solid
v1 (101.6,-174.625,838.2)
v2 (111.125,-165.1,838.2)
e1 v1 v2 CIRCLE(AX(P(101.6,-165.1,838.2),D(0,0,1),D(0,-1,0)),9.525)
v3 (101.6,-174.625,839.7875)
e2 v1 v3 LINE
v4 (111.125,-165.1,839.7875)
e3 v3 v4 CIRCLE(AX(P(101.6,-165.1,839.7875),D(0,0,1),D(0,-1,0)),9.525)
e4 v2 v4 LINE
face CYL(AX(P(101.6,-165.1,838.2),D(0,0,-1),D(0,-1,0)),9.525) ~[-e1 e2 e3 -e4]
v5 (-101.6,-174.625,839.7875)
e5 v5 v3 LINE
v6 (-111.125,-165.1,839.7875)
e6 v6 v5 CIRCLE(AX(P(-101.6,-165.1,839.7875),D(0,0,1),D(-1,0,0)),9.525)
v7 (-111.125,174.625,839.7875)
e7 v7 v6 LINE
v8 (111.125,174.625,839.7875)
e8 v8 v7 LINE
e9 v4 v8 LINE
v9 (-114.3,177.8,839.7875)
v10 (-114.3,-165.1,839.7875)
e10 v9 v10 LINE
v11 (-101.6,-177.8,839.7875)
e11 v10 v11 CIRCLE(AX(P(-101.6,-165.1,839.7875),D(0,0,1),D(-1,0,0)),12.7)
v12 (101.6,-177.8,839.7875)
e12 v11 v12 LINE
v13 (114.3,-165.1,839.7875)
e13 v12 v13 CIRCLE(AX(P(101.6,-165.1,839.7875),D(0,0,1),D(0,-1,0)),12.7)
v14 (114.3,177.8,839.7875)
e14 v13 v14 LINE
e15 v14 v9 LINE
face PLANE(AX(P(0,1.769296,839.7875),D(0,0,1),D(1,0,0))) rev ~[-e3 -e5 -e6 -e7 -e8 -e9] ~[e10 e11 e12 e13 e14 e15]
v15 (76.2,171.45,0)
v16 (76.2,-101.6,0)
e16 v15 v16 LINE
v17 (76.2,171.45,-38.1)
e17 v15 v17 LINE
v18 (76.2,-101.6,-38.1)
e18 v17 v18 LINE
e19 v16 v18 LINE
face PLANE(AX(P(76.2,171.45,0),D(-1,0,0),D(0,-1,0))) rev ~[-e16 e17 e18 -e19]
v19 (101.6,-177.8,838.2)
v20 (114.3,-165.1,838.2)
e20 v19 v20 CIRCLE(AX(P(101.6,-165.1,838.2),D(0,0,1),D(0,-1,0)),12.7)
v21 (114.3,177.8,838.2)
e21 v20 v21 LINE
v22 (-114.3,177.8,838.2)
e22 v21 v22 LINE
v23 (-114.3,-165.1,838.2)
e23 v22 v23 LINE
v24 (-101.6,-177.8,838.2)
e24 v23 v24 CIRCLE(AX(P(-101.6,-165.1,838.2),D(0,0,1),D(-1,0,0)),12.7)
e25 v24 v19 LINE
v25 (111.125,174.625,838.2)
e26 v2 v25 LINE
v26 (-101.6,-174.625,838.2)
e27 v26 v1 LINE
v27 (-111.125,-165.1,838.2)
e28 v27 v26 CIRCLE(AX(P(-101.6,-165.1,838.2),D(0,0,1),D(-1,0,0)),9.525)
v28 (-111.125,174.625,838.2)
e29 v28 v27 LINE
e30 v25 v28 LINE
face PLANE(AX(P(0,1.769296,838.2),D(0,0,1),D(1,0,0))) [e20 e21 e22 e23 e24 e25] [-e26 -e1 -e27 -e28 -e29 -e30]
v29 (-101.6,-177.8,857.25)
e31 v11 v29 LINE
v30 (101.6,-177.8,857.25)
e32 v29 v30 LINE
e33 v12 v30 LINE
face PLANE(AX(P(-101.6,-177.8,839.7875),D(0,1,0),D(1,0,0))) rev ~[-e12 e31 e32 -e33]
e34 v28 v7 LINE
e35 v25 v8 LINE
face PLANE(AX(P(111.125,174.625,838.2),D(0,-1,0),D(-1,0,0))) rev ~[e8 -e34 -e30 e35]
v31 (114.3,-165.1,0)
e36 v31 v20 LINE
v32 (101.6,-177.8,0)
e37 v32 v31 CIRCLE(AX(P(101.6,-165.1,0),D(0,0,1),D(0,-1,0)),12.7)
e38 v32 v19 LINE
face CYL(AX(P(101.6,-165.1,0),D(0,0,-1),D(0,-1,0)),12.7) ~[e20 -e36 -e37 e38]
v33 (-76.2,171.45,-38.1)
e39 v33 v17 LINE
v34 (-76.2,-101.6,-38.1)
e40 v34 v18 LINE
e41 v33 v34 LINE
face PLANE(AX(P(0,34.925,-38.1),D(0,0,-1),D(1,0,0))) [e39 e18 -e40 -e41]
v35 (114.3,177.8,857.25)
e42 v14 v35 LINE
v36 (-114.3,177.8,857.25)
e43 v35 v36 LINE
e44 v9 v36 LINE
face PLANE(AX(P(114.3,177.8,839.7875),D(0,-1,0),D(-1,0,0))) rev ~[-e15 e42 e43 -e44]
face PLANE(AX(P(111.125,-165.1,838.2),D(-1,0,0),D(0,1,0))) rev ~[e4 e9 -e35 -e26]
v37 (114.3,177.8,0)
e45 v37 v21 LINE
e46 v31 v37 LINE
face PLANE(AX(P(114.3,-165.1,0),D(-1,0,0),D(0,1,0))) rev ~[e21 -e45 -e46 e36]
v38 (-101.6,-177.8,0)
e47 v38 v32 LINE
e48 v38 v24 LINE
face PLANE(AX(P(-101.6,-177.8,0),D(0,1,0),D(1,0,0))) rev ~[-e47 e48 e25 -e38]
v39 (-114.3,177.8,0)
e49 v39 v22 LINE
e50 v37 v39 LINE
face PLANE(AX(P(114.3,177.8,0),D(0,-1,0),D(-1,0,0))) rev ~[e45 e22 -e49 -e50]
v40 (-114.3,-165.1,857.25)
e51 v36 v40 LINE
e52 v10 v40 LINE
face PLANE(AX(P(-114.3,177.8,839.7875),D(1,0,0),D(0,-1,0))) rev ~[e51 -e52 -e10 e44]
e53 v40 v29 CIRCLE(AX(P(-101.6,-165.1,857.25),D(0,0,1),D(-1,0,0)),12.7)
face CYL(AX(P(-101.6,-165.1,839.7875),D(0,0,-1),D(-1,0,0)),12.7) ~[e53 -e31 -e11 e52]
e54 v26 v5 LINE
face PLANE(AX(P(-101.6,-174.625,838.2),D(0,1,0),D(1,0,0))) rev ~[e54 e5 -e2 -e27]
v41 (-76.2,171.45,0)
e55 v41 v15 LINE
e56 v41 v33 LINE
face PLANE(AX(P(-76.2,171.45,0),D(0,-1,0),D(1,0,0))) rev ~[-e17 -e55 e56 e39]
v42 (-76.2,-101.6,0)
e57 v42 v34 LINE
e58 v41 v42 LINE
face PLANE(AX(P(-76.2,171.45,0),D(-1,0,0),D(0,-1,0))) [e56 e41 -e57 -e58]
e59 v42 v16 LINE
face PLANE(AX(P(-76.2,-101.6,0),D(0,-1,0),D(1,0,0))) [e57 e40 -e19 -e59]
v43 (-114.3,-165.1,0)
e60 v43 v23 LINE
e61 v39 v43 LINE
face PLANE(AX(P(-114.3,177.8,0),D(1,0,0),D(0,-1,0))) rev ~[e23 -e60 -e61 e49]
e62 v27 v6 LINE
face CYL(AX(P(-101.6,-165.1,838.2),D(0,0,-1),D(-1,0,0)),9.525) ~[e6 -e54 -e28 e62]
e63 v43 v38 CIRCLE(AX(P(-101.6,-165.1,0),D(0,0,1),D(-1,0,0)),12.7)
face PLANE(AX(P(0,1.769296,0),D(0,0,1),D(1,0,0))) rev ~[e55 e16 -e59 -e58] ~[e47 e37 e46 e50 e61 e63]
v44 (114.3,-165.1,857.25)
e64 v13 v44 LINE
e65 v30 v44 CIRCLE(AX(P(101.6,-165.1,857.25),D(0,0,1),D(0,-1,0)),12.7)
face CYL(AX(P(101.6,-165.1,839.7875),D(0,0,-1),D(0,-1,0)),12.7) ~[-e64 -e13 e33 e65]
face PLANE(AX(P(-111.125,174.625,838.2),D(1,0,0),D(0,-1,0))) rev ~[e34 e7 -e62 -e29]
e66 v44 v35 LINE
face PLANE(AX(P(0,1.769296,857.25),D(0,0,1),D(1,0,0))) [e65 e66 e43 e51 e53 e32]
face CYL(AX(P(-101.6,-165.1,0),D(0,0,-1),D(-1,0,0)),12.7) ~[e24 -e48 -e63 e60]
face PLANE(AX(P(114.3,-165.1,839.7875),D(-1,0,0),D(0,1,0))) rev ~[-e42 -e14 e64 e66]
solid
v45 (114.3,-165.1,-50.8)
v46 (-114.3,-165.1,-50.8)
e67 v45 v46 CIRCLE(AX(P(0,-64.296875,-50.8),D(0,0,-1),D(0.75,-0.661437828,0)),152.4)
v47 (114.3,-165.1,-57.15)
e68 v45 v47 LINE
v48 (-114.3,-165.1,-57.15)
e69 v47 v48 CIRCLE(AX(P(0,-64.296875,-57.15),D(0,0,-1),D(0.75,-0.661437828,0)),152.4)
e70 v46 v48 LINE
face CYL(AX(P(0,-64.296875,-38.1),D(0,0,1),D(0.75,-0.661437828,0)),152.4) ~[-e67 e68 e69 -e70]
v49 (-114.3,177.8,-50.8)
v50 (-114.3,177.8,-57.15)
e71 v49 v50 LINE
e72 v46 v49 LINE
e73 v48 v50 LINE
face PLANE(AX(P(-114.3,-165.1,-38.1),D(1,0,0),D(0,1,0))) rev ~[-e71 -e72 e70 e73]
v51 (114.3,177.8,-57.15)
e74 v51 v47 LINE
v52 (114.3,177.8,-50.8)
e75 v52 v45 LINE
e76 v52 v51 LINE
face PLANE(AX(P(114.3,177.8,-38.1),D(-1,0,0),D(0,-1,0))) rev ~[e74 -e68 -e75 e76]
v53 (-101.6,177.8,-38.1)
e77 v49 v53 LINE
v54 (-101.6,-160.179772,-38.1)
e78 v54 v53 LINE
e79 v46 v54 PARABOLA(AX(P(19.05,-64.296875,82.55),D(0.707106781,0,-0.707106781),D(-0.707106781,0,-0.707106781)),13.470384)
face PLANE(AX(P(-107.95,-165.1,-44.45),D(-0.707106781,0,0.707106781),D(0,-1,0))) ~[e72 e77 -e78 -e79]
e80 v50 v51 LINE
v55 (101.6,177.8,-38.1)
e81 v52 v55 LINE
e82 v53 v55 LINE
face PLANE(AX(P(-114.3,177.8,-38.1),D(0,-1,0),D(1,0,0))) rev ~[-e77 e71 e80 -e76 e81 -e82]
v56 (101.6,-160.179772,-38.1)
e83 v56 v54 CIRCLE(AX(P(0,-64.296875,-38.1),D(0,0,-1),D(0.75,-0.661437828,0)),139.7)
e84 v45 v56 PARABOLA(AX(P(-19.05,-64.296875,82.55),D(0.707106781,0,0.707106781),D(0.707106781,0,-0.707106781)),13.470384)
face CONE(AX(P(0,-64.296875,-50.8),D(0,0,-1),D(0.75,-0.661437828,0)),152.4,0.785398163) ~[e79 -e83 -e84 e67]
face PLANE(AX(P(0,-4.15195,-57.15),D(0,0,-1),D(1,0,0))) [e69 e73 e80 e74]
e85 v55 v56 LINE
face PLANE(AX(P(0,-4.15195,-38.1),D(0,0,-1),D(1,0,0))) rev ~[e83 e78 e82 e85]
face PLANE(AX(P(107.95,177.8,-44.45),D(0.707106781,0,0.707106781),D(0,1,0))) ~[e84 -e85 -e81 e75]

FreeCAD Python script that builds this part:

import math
import FreeCAD as App
import Part
import Sketcher
Q = App.Units.Quantity


def edges_at(feature, points):
    """Names of the edges that pass closest to the given points."""
    edges = feature.Shape.Edges
    near = lambda p: min(range(len(edges)), key=lambda i: edges[i].distToShape(Part.Vertex(*p))[0])
    return sorted({f"Edge{near(p) + 1}" for p in points})

doc = App.newDocument("Part")
body = doc.addObject("PartDesign::Body", "Body")

sketch1 = body.newObject("Sketcher::SketchObject", "Sketch")
sketch1.AttachmentSupport = (doc.getObject("XY_Plane"), [""])
sketch1.MapMode = "FlatFace"
sketch1.addGeometry(Part.LineSegment(App.Vector(-114, 178, 0), App.Vector(-114, -165, 0)), False)
sketch1.addGeometry(Part.ArcOfCircle(Part.Circle(App.Vector(-102, -165, 0), App.Vector(0, 0, 1), 13), math.radians(180), math.radians(270)), False)
sketch1.addGeometry(Part.LineSegment(App.Vector(-102, -178, 0), App.Vector(102, -178, 0)), False)
sketch1.addGeometry(Part.ArcOfCircle(Part.Circle(App.Vector(102, -165, 0), App.Vector(0, 0, 1), 13), math.radians(-90), math.radians(0)), False)
sketch1.addGeometry(Part.LineSegment(App.Vector(114, -165, 0), App.Vector(114, 178, 0)), False)
sketch1.addGeometry(Part.LineSegment(App.Vector(114, 178, 0), App.Vector(-114, 178, 0)), False)
sketch1.addConstraint(Sketcher.Constraint("Tangent", 0, 2, 1, 1))
sketch1.addConstraint(Sketcher.Constraint("Tangent", 1, 2, 2, 1))
sketch1.addConstraint(Sketcher.Constraint("Tangent", 2, 2, 3, 1))
sketch1.addConstraint(Sketcher.Constraint("Tangent", 3, 2, 4, 1))
sketch1.addConstraint(Sketcher.Constraint("Coincident", 4, 2, 5, 1))
sketch1.addConstraint(Sketcher.Constraint("Coincident", 5, 2, 0, 1))
sketch1.addConstraint(Sketcher.Constraint("Vertical", 0))
sketch1.addConstraint(Sketcher.Constraint("Horizontal", 2))
sketch1.addConstraint(Sketcher.Constraint("Vertical", 4))
sketch1.addConstraint(Sketcher.Constraint("Horizontal", 5))
sketch1.addConstraint(Sketcher.Constraint("Equal", 1, 3))
sketch1.addConstraint(Sketcher.Constraint("Radius", 1, Q("0.5 in")))
sketch1.addConstraint(Sketcher.Constraint("DistanceX", 2, 1, 2, 2, Q("8 in")))
sketch1.addConstraint(Sketcher.Constraint("DistanceY", 0, 2, 0, 1, Q("13.5 in")))
sketch1.addConstraint(Sketcher.Constraint("DistanceX", 1, 3, -1, 1, Q("4 in")))
sketch1.addConstraint(Sketcher.Constraint("DistanceY", 1, 2, -1, 1, Q("7 in")))
pad1 = body.newObject("PartDesign::Pad", "Pad")
pad1.Profile = sketch1
pad1.Length = Q("33 in")

sketch2 = body.newObject("Sketcher::SketchObject", "Sketch001")
sketch2.AttachmentSupport = (doc.getObject("XY_Plane"), [""])
sketch2.MapMode = "FlatFace"
sketch2.AttachmentOffset = App.Placement(App.Vector(0, 0, 33 * 25.4), App.Rotation())
sketch2.addGeometry(Part.LineSegment(App.Vector(-111, 175, 0), App.Vector(-111, -165, 0)), False)
sketch2.addGeometry(Part.ArcOfCircle(Part.Circle(App.Vector(-102, -165, 0), App.Vector(0, 0, 1), 10), math.radians(180), math.radians(270)), False)
sketch2.addGeometry(Part.LineSegment(App.Vector(-102, -175, 0), App.Vector(102, -175, 0)), False)
sketch2.addGeometry(Part.ArcOfCircle(Part.Circle(App.Vector(102, -165, 0), App.Vector(0, 0, 1), 10), math.radians(-90), math.radians(0)), False)
sketch2.addGeometry(Part.LineSegment(App.Vector(111, -165, 0), App.Vector(111, 175, 0)), False)
sketch2.addGeometry(Part.LineSegment(App.Vector(111, 175, 0), App.Vector(-111, 175, 0)), False)
sketch2.addConstraint(Sketcher.Constraint("Tangent", 0, 2, 1, 1))
sketch2.addConstraint(Sketcher.Constraint("Tangent", 1, 2, 2, 1))
sketch2.addConstraint(Sketcher.Constraint("Tangent", 2, 2, 3, 1))
sketch2.addConstraint(Sketcher.Constraint("Tangent", 3, 2, 4, 1))
sketch2.addConstraint(Sketcher.Constraint("Coincident", 4, 2, 5, 1))
sketch2.addConstraint(Sketcher.Constraint("Coincident", 5, 2, 0, 1))
sketch2.addConstraint(Sketcher.Constraint("Vertical", 0))
sketch2.addConstraint(Sketcher.Constraint("Horizontal", 2))
sketch2.addConstraint(Sketcher.Constraint("Vertical", 4))
sketch2.addConstraint(Sketcher.Constraint("Horizontal", 5))
sketch2.addConstraint(Sketcher.Constraint("Equal", 1, 3))
sketch2.addConstraint(Sketcher.Constraint("DistanceX", 2, 1, 2, 2, Q("8 in")))
sketch2.addConstraint(Sketcher.Constraint("DistanceX", 1, 3, -1, 1, Q("4 in")))
sketch2.addConstraint(Sketcher.Constraint("Radius", 1, Q("0.375 in")))
sketch2.addConstraint(Sketcher.Constraint("DistanceY", 1, 3, -1, 1, Q("6.5 in")))
sketch2.addConstraint(Sketcher.Constraint("DistanceY", 0, 2, 0, 1, Q("13.375 in")))
pad2 = body.newObject("PartDesign::Pad", "Pad001")
pad2.Profile = sketch2
pad2.Length = Q("0.0625 in")

sketch3 = body.newObject("Sketcher::SketchObject", "Sketch002")
sketch3.AttachmentSupport = (doc.getObject("XY_Plane"), [""])
sketch3.MapMode = "FlatFace"
sketch3.AttachmentOffset = App.Placement(App.Vector(0, 0, 33.0625 * 25.4), App.Rotation())
sketch3.addGeometry(Part.LineSegment(App.Vector(-102, -178, 0), App.Vector(102, -178, 0)), False)
sketch3.addGeometry(Part.ArcOfCircle(Part.Circle(App.Vector(102, -165, 0), App.Vector(0, 0, 1), 13), math.radians(-90), math.radians(0)), False)
sketch3.addGeometry(Part.LineSegment(App.Vector(114, -165, 0), App.Vector(114, 178, 0)), False)
sketch3.addGeometry(Part.LineSegment(App.Vector(114, 178, 0), App.Vector(-114, 178, 0)), False)
sketch3.addGeometry(Part.LineSegment(App.Vector(-114, 178, 0), App.Vector(-114, -165, 0)), False)
sketch3.addGeometry(Part.ArcOfCircle(Part.Circle(App.Vector(-102, -165, 0), App.Vector(0, 0, 1), 13), math.radians(180), math.radians(270)), False)
sketch3.addConstraint(Sketcher.Constraint("Tangent", 0, 2, 1, 1))
sketch3.addConstraint(Sketcher.Constraint("Tangent", 1, 2, 2, 1))
sketch3.addConstraint(Sketcher.Constraint("Coincident", 2, 2, 3, 1))
sketch3.addConstraint(Sketcher.Constraint("Coincident", 3, 2, 4, 1))
sketch3.addConstraint(Sketcher.Constraint("Tangent", 4, 2, 5, 1))
sketch3.addConstraint(Sketcher.Constraint("Tangent", 5, 2, 0, 1))
sketch3.addConstraint(Sketcher.Constraint("Horizontal", 0))
sketch3.addConstraint(Sketcher.Constraint("Vertical", 2))
sketch3.addConstraint(Sketcher.Constraint("Horizontal", 3))
sketch3.addConstraint(Sketcher.Constraint("Vertical", 4))
sketch3.addConstraint(Sketcher.Constraint("Equal", 1, 5))
sketch3.addConstraint(Sketcher.Constraint("Radius", 1, Q("0.5 in")))
sketch3.addConstraint(Sketcher.Constraint("DistanceX", 0, 1, 0, 2, Q("8 in")))
sketch3.addConstraint(Sketcher.Constraint("DistanceY", 2, 1, 2, 2, Q("13.5 in")))
sketch3.addConstraint(Sketcher.Constraint("DistanceX", -1, 1, 1, 3, Q("4 in")))
sketch3.addConstraint(Sketcher.Constraint("DistanceY", 0, 2, -1, 1, Q("7 in")))
pad3 = body.newObject("PartDesign::Pad", "Pad002")
pad3.Profile = sketch3
pad3.Length = Q("0.6875 in")

sketch4 = body.newObject("Sketcher::SketchObject", "Sketch003")
sketch4.AttachmentSupport = (doc.getObject("XY_Plane"), [""])
sketch4.MapMode = "FlatFace"
sketch4.addGeometry(Part.LineSegment(App.Vector(-76, -102, 0), App.Vector(-76, 171, 0)), False)
sketch4.addGeometry(Part.LineSegment(App.Vector(-76, 171, 0), App.Vector(76, 171, 0)), False)
sketch4.addGeometry(Part.LineSegment(App.Vector(76, 171, 0), App.Vector(76, -102, 0)), False)
sketch4.addGeometry(Part.LineSegment(App.Vector(76, -102, 0), App.Vector(-76, -102, 0)), False)
sketch4.addConstraint(Sketcher.Constraint("Coincident", 0, 2, 1, 1))
sketch4.addConstraint(Sketcher.Constraint("Coincident", 1, 2, 2, 1))
sketch4.addConstraint(Sketcher.Constraint("Coincident", 2, 2, 3, 1))
sketch4.addConstraint(Sketcher.Constraint("Coincident", 3, 2, 0, 1))
sketch4.addConstraint(Sketcher.Constraint("Vertical", 0))
sketch4.addConstraint(Sketcher.Constraint("Horizontal", 1))
sketch4.addConstraint(Sketcher.Constraint("Vertical", 2))
sketch4.addConstraint(Sketcher.Constraint("Horizontal", 3))
sketch4.addConstraint(Sketcher.Constraint("DistanceX", 1, 1, 1, 2, Q("6 in")))
sketch4.addConstraint(Sketcher.Constraint("DistanceX", 0, 2, -1, 1, Q("3 in")))
sketch4.addConstraint(Sketcher.Constraint("DistanceY", 2, 2, -1, 1, Q("4 in")))
sketch4.addConstraint(Sketcher.Constraint("DistanceY", 0, 1, 0, 2, Q("10.75 in")))
pad4 = body.newObject("PartDesign::Pad", "Pad003")
pad4.Profile = sketch4
pad4.Length = Q("1.5 in")
pad4.Reversed = True
body2 = doc.addObject("PartDesign::Body", "Body001")

sketch5 = body2.newObject("Sketcher::SketchObject", "Sketch004")
sketch5.AttachmentSupport = (doc.getObject("XY_Plane001"), [""])
sketch5.MapMode = "FlatFace"
sketch5.AttachmentOffset = App.Placement(App.Vector(0, 0, -1.5 * 25.4), App.Rotation())
sketch5.addGeometry(Part.LineSegment(App.Vector(-114, -165, 0), App.Vector(-114, 178, 0)), False)
sketch5.addGeometry(Part.LineSegment(App.Vector(-114, 178, 0), App.Vector(114, 178, 0)), False)
sketch5.addGeometry(Part.LineSegment(App.Vector(114, 178, 0), App.Vector(114, -165, 0)), False)
sketch5.addGeometry(Part.ArcOfCircle(Part.Circle(App.Vector(0, -64, 0), App.Vector(0, 0, 1), 152), math.radians(-139), math.radians(-41)), False)
sketch5.addConstraint(Sketcher.Constraint("Coincident", 0, 2, 1, 1))
sketch5.addConstraint(Sketcher.Constraint("Coincident", 1, 2, 2, 1))
sketch5.addConstraint(Sketcher.Constraint("Coincident", 2, 2, 3, 2))
sketch5.addConstraint(Sketcher.Constraint("Coincident", 3, 1, 0, 1))
sketch5.addConstraint(Sketcher.Constraint("Vertical", 0))
sketch5.addConstraint(Sketcher.Constraint("Horizontal", 1))
sketch5.addConstraint(Sketcher.Constraint("Vertical", 2))
sketch5.addConstraint(Sketcher.Constraint("Symmetric", 2, 2, 3, 1, -2))
sketch5.addConstraint(Sketcher.Constraint("Radius", 3, Q("6 in")))
sketch5.addConstraint(Sketcher.Constraint("DistanceX", 1, 1, 1, 2, Q("9 in")))
sketch5.addConstraint(Sketcher.Constraint("DistanceY", 0, 1, 0, 2, Q("13.5 in")))
sketch5.addConstraint(Sketcher.Constraint("DistanceY", -1, 1, 0, 2, Q("7 in")))
pad5 = body2.newObject("PartDesign::Pad", "Pad004")
pad5.Profile = sketch5
pad5.Length = Q("0.75 in")
pad5.Reversed = True
doc.recompute()

chamfer = body2.newObject("PartDesign::Chamfer", "Chamfer")
chamfer.Base = (pad5, edges_at(pad5, [(-114.3, 6.35, -38.1), (0, -216.697, -38.1), (114.3, 6.35, -38.1)]))
chamfer.Size = Q("0.5 in")

doc.recompute()
